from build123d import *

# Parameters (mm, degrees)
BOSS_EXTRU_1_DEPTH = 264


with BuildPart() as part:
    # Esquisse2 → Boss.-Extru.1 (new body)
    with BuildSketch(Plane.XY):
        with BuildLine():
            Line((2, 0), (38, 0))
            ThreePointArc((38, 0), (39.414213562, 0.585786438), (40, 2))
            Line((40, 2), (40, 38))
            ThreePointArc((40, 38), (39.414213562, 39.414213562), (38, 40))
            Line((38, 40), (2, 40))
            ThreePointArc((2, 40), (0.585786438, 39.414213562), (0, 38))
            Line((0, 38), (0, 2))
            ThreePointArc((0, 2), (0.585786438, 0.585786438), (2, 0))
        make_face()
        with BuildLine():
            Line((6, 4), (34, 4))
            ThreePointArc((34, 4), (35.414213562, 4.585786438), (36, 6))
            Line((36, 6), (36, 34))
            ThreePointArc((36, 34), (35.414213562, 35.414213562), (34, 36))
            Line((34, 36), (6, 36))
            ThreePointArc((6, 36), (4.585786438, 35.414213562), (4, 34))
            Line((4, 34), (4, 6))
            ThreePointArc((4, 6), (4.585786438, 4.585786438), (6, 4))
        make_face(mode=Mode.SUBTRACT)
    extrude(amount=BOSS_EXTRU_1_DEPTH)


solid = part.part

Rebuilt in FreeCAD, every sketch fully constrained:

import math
import FreeCAD as App
import Part
import Sketcher
from FreeCAD import Vector
Q = App.Units.Quantity

doc = App.newDocument("Part")
body = doc.addObject("PartDesign::Body", "Body")

# Sketch on XY plane
sketch1 = body.newObject("Sketcher::SketchObject", "Sketch")
sketch1.AttachmentSupport = (doc.getObject("XY_Plane"), [""])
sketch1.MapMode = "FlatFace"
sketch1.addGeometry(Part.LineSegment(Vector(2, 0, 0), Vector(38, 0, 0)), False)
sketch1.addGeometry(Part.ArcOfCircle(Part.Circle(Vector(38, 2, 0), Vector(0, 0, 1), 2), math.radians(-90), math.radians(0)), False)
sketch1.addGeometry(Part.LineSegment(Vector(40, 2, 0), Vector(40, 38, 0)), False)
sketch1.addGeometry(Part.ArcOfCircle(Part.Circle(Vector(38, 38, 0), Vector(0, 0, 1), 2), math.radians(0), math.radians(90)), False)
sketch1.addGeometry(Part.LineSegment(Vector(38, 40, 0), Vector(2, 40, 0)), False)
sketch1.addGeometry(Part.ArcOfCircle(Part.Circle(Vector(2, 38, 0), Vector(0, 0, 1), 2), math.radians(90), math.radians(180)), False)
sketch1.addGeometry(Part.LineSegment(Vector(0, 38, 0), Vector(0, 2, 0)), False)
sketch1.addGeometry(Part.ArcOfCircle(Part.Circle(Vector(2, 2, 0), Vector(0, 0, 1), 2), math.radians(-180), math.radians(-90)), False)
sketch1.addGeometry(Part.LineSegment(Vector(34, 4, 0), Vector(6, 4, 0)), False)
sketch1.addGeometry(Part.ArcOfCircle(Part.Circle(Vector(6, 6, 0), Vector(0, 0, 1), 2), math.radians(-180), math.radians(-90)), False)
sketch1.addGeometry(Part.LineSegment(Vector(4, 6, 0), Vector(4, 34, 0)), False)
sketch1.addGeometry(Part.ArcOfCircle(Part.Circle(Vector(6, 34, 0), Vector(0, 0, 1), 2), math.radians(90), math.radians(180)), False)
sketch1.addGeometry(Part.LineSegment(Vector(6, 36, 0), Vector(34, 36, 0)), False)
sketch1.addGeometry(Part.ArcOfCircle(Part.Circle(Vector(34, 34, 0), Vector(0, 0, 1), 2), math.radians(0), math.radians(90)), False)
sketch1.addGeometry(Part.LineSegment(Vector(36, 34, 0), Vector(36, 6, 0)), False)
sketch1.addGeometry(Part.ArcOfCircle(Part.Circle(Vector(34, 6, 0), Vector(0, 0, 1), 2), math.radians(-90), math.radians(0)), False)
sketch1.addConstraint(Sketcher.Constraint("Tangent", 0, 2, 1, 1))
sketch1.addConstraint(Sketcher.Constraint("Tangent", 1, 2, 2, 1))
sketch1.addConstraint(Sketcher.Constraint("Tangent", 2, 2, 3, 1))
sketch1.addConstraint(Sketcher.Constraint("Tangent", 3, 2, 4, 1))
sketch1.addConstraint(Sketcher.Constraint("Tangent", 4, 2, 5, 1))
sketch1.addConstraint(Sketcher.Constraint("Tangent", 5, 2, 6, 1))
sketch1.addConstraint(Sketcher.Constraint("Tangent", 6, 2, 7, 1))
sketch1.addConstraint(Sketcher.Constraint("Tangent", 7, 2, 0, 1))
sketch1.addConstraint(Sketcher.Constraint("Tangent", 8, 2, 9, 2))
sketch1.addConstraint(Sketcher.Constraint("Tangent", 9, 1, 10, 1))
sketch1.addConstraint(Sketcher.Constraint("Tangent", 10, 2, 11, 2))
sketch1.addConstraint(Sketcher.Constraint("Tangent", 11, 1, 12, 1))
sketch1.addConstraint(Sketcher.Constraint("Tangent", 12, 2, 13, 2))
sketch1.addConstraint(Sketcher.Constraint("Tangent", 13, 1, 14, 1))
sketch1.addConstraint(Sketcher.Constraint("Tangent", 14, 2, 15, 2))
sketch1.addConstraint(Sketcher.Constraint("Tangent", 15, 1, 8, 1))
sketch1.addConstraint(Sketcher.Constraint("Horizontal", 0))
sketch1.addConstraint(Sketcher.Constraint("Vertical", 2))
sketch1.addConstraint(Sketcher.Constraint("Horizontal", 4))
sketch1.addConstraint(Sketcher.Constraint("Vertical", 6))
sketch1.addConstraint(Sketcher.Constraint("Horizontal", 8))
sketch1.addConstraint(Sketcher.Constraint("Vertical", 10))
sketch1.addConstraint(Sketcher.Constraint("Horizontal", 12))
sketch1.addConstraint(Sketcher.Constraint("Vertical", 14))
sketch1.addConstraint(Sketcher.Constraint("Equal", 1, 3))
sketch1.addConstraint(Sketcher.Constraint("Equal", 3, 5))
sketch1.addConstraint(Sketcher.Constraint("Equal", 5, 7))
sketch1.addConstraint(Sketcher.Constraint("Equal", 7, 9))
sketch1.addConstraint(Sketcher.Constraint("Equal", 9, 11))
sketch1.addConstraint(Sketcher.Constraint("Equal", 11, 13))
sketch1.addConstraint(Sketcher.Constraint("Equal", 13, 15))
sketch1.addConstraint(Sketcher.Constraint("PointOnObject", 0, 2, -1))
sketch1.addConstraint(Sketcher.Constraint("PointOnObject", 5, 2, -2))
sketch1.addConstraint(Sketcher.Constraint("Equal", 4, 2))
sketch1.addConstraint(Sketcher.Constraint("Equal", 12, 10))
sketch1.addConstraint(Sketcher.Constraint("Radius", 1, Q("2 mm")))
sketch1.addConstraint(Sketcher.Constraint("DistanceX", 0, 1, 0, 2, Q("36 mm")))
sketch1.addConstraint(Sketcher.Constraint("DistanceX", 8, 2, 8, 1, Q("28 mm")))
sketch1.addConstraint(Sketcher.Constraint("DistanceX", -1, 1, 9, 3, Q("6 mm")))
sketch1.addConstraint(Sketcher.Constraint("DistanceY", -1, 1, 9, 3, Q("6 mm")))
pad1 = body.newObject("PartDesign::Pad", "Pad")
pad1.Profile = sketch1
pad1.Length = 264

doc.recompute()
